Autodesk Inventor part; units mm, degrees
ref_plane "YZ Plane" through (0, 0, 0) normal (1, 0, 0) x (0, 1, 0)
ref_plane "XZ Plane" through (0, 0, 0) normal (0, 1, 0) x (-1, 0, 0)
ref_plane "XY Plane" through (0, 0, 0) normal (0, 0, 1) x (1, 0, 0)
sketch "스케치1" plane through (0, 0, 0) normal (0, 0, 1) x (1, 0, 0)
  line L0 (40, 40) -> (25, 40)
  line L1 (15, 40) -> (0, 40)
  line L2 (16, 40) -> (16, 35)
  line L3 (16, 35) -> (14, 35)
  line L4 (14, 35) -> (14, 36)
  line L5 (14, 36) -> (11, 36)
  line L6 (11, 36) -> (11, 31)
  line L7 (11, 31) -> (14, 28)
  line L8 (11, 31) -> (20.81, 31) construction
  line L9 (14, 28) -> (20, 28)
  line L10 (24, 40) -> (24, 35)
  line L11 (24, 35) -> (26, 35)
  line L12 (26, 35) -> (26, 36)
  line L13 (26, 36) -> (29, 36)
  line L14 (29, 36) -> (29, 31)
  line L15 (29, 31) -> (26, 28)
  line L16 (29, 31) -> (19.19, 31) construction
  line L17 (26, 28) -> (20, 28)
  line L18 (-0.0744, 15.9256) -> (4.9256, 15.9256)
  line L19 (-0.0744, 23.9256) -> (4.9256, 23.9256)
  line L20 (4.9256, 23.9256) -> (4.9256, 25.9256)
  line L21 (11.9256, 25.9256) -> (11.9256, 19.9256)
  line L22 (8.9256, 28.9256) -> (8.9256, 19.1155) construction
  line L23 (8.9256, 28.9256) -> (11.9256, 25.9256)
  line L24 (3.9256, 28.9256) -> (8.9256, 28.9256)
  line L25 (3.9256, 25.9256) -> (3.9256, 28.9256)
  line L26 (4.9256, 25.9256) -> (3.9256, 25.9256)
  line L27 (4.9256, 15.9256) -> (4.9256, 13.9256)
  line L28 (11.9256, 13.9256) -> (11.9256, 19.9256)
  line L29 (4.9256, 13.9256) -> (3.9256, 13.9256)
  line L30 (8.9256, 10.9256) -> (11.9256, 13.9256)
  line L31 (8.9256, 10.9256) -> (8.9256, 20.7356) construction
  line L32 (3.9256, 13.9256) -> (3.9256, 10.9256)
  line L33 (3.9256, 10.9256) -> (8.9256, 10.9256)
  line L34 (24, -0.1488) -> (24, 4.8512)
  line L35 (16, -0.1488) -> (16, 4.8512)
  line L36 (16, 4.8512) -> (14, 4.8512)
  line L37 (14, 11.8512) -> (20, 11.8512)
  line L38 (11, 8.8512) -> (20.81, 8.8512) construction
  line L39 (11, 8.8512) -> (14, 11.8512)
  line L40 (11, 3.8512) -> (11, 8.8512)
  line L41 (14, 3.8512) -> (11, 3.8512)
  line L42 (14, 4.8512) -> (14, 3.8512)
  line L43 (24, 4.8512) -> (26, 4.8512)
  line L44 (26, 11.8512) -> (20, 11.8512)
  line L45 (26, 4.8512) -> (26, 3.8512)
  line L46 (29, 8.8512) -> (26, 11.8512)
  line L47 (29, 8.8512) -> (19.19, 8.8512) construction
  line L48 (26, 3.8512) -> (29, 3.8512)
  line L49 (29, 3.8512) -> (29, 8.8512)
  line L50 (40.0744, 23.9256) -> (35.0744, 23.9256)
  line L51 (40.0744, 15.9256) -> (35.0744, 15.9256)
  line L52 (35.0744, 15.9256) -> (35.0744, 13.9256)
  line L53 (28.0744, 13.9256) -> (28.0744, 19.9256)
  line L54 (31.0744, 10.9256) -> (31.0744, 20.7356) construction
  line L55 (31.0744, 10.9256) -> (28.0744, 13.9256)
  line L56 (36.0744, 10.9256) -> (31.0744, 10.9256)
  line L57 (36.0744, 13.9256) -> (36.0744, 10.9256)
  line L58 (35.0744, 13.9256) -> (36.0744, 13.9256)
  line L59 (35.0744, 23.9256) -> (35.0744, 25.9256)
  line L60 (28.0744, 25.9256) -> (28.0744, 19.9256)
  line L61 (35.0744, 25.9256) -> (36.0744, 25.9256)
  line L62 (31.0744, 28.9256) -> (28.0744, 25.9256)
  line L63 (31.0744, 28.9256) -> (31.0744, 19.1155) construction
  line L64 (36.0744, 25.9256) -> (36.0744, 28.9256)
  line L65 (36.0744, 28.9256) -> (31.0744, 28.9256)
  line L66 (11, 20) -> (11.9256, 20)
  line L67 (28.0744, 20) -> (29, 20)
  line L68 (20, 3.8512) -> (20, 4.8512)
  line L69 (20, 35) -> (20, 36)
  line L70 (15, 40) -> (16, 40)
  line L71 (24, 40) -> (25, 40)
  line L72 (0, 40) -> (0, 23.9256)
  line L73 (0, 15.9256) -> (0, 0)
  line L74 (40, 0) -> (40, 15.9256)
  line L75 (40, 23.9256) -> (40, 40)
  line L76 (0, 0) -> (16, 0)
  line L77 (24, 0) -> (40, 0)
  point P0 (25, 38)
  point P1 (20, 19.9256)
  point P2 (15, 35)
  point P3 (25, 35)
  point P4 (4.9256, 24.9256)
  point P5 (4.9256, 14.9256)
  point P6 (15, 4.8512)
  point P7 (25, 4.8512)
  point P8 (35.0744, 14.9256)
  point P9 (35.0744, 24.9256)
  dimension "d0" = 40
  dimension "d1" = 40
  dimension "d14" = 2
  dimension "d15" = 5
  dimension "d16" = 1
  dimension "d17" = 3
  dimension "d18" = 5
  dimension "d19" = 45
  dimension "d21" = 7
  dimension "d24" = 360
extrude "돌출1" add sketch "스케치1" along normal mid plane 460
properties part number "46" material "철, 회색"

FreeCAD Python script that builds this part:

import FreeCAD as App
import Part
import Sketcher
from FreeCAD import Vector


def add_polygon(sketch, points):
    """Adds a closed chain of lines whose ends are joined by coincident constraints."""
    first, n = sketch.GeometryCount, len(points)
    for a, b in zip(points, points[1:] + points[:1]):
        sketch.addGeometry(Part.LineSegment(App.Vector(*a, 0), App.Vector(*b, 0)), False)
    for i in range(n):
        sketch.addConstraint(Sketcher.Constraint("Coincident", first + i, 2, first + (i + 1) % n, 1))

doc = App.newDocument("Part")
params = doc.addObject("Spreadsheet::Sheet", "Params")
for row, (alias, value) in enumerate([
    ("sketch1_width", "2 mm"),
    ("sketch1_width2", "3 mm"),
    ("sketch1_width3", "1 mm"),
    ("sketch1_width4", "5 mm"),
    ("sketch1_width5", "16 mm"),
    ("pad1_length", "460 mm"),
], start=1):
    params.set(f"A{row}", alias)
    params.set(f"B{row}", "=" + value)
    params.setAlias(f"B{row}", alias)

body = doc.addObject("PartDesign::Body", "Body")

# Sketch on XY plane
sketch1 = doc.addObject("Sketcher::SketchObject", "Sketch")
body.addObject(sketch1)
sketch1.AttachmentSupport = (doc.XY_Plane, [""])
sketch1.MapMode = "FlatFace"
add_polygon(sketch1, [(40, 23.9), (40, 40), (24, 40), (24, 35), (26, 35), (26, 36), (29, 36), (29, 31), (26, 28), (14, 28), (11, 31), (11, 36), (14, 36), (14, 35), (16, 35), (16, 40), (0, 40), (0, 23.9), (4.9, 23.9), (4.9, 25.9), (3.9, 25.9), (3.9, 28.9), (8.9, 28.9), (11.9, 25.9), (11.9, 13.9), (8.9, 10.9), (3.9, 10.9), (3.9, 13.9), (4.9, 13.9), (4.9, 15.9), (0, 15.9), (0, 0), (16, 0), (16, 4.9), (14, 4.9), (14, 3.9), (11, 3.9), (11, 8.9), (14, 11.9), (26, 11.9), (29, 8.9), (29, 3.9), (26, 3.9), (26, 4.9), (24, 4.9), (24, 0), (40, 0), (40, 15.9), (35.1, 15.9), (35.1, 13.9), (36.1, 13.9), (36.1, 10.9), (31.1, 10.9), (28.1, 13.9), (28.1, 25.9), (31.1, 28.9), (36.1, 28.9), (36.1, 25.9), (35.1, 25.9), (35.1, 23.9)])  # lines 0-59
sketch1.addConstraint([
    Sketcher.Constraint("Vertical", 0),
    Sketcher.Constraint("Horizontal", 1),
    Sketcher.Constraint("Vertical", 2),
    Sketcher.Constraint("Horizontal", 3),
    Sketcher.Constraint("Vertical", 4),
    Sketcher.Constraint("Horizontal", 5),
    Sketcher.Constraint("Vertical", 6),
    Sketcher.Constraint("Horizontal", 8),
    Sketcher.Constraint("Vertical", 10),
    Sketcher.Constraint("Horizontal", 11),
    Sketcher.Constraint("Vertical", 12),
    Sketcher.Constraint("Horizontal", 13),
    Sketcher.Constraint("Vertical", 14),
    Sketcher.Constraint("Horizontal", 15),
    Sketcher.Constraint("Vertical", 16),
    Sketcher.Constraint("Horizontal", 17),
    Sketcher.Constraint("Vertical", 18),
    Sketcher.Constraint("Horizontal", 19),
    Sketcher.Constraint("Vertical", 20),
    Sketcher.Constraint("Horizontal", 21),
    Sketcher.Constraint("Vertical", 23),
    Sketcher.Constraint("Horizontal", 25),
    Sketcher.Constraint("Vertical", 26),
    Sketcher.Constraint("Horizontal", 27),
    Sketcher.Constraint("Vertical", 28),
    Sketcher.Constraint("Horizontal", 29),
    Sketcher.Constraint("Vertical", 30),
    Sketcher.Constraint("Horizontal", 31),
    Sketcher.Constraint("Vertical", 32),
    Sketcher.Constraint("Horizontal", 33),
    Sketcher.Constraint("Vertical", 34),
    Sketcher.Constraint("Horizontal", 35),
    Sketcher.Constraint("Vertical", 36),
    Sketcher.Constraint("Horizontal", 38),
    Sketcher.Constraint("Vertical", 40),
    Sketcher.Constraint("Horizontal", 41),
    Sketcher.Constraint("Vertical", 42),
    Sketcher.Constraint("Horizontal", 43),
    Sketcher.Constraint("Vertical", 44),
    Sketcher.Constraint("Horizontal", 45),
    Sketcher.Constraint("Vertical", 46),
    Sketcher.Constraint("Horizontal", 47),
    Sketcher.Constraint("Vertical", 48),
    Sketcher.Constraint("Horizontal", 49),
    Sketcher.Constraint("Vertical", 50),
    Sketcher.Constraint("Horizontal", 51),
    Sketcher.Constraint("Vertical", 53),
    Sketcher.Constraint("Horizontal", 55),
    Sketcher.Constraint("Vertical", 56),
    Sketcher.Constraint("Horizontal", 57),
    Sketcher.Constraint("Vertical", 58),
    Sketcher.Constraint("Horizontal", 59),
    Sketcher.Constraint("Coincident", 30, 2, -1, 1),
    Sketcher.Constraint("PointOnObject", 15, 2, -2),
    Sketcher.Constraint("PointOnObject", 44, 2, -1),
    Sketcher.Constraint("Perpendicular", 7, 9),
    Sketcher.Constraint("Parallel", 9, 22),
    Sketcher.Constraint("Perpendicular", 22, 24),
    Sketcher.Constraint("Parallel", 24, 37),
    Sketcher.Constraint("Perpendicular", 37, 39),
    Sketcher.Constraint("Parallel", 39, 52),
    Sketcher.Constraint("Perpendicular", 52, 54),
    Sketcher.Constraint("Horizontal", 6, 2, 9, 2),
    Sketcher.Constraint("Horizontal", 5, 2, 10, 2),
    Sketcher.Constraint("Horizontal", 3, 2, 12, 2),
    Sketcher.Constraint("Horizontal", 1, 2, 14, 2),
    Sketcher.Constraint("Horizontal", 19, 2, 22, 2),
    Sketcher.Constraint("Horizontal", 23, 2, 26, 2),
    Sketcher.Constraint("Horizontal", 36, 2, 39, 2),
    Sketcher.Constraint("Horizontal", 35, 2, 40, 2),
    Sketcher.Constraint("Horizontal", 33, 2, 42, 2),
    Sketcher.Constraint("Horizontal", 29, 2, 46, 2),
    Sketcher.Constraint("Horizontal", 27, 2, 48, 2),
    Sketcher.Constraint("Horizontal", 25, 2, 50, 2),
    Sketcher.Constraint("Horizontal", 49, 2, 52, 2),
    Sketcher.Constraint("Horizontal", 22, 2, 53, 2),
    Sketcher.Constraint("Horizontal", 21, 2, 54, 2),
    Sketcher.Constraint("Horizontal", 53, 2, 56, 2),
    Sketcher.Constraint("Horizontal", 17, 2, 58, 2),
    Sketcher.Constraint("Vertical", 4, 2, 7, 2),
    Sketcher.Constraint("Vertical", 8, 2, 11, 2),
    Sketcher.Constraint("Vertical", 21, 2, 24, 2),
    Sketcher.Constraint("Vertical", 20, 2, 25, 2),
    Sketcher.Constraint("Vertical", 18, 2, 27, 2),
    Sketcher.Constraint("Vertical", 14, 2, 31, 2),
    Sketcher.Constraint("Vertical", 12, 2, 33, 2),
    Sketcher.Constraint("Vertical", 10, 2, 35, 2),
    Sketcher.Constraint("Vertical", 34, 2, 37, 2),
    Sketcher.Constraint("Vertical", 7, 2, 38, 2),
    Sketcher.Constraint("Vertical", 6, 2, 39, 2),
    Sketcher.Constraint("Vertical", 38, 2, 41, 2),
    Sketcher.Constraint("Vertical", 2, 2, 43, 2),
    Sketcher.Constraint("Vertical", 0, 2, 45, 2),
    Sketcher.Constraint("Vertical", 50, 2, 55, 2),
    Sketcher.Constraint("Vertical", 48, 2, 57, 2),
    Sketcher.Constraint("Equal", 3, 13),
    Sketcher.Constraint("Equal", 1, 15),
    Sketcher.Constraint("Equal", 29, 47),
    Sketcher.Constraint("Equal", 27, 49),
    Sketcher.Constraint("Equal", 25, 51),
    Sketcher.Constraint("Equal", 55, 2),
    Sketcher.Constraint("Equal", 57, 4),
    Sketcher.Constraint("Equal", 2, 6),
    Sketcher.Constraint("Equal", 43, 18),
    Sketcher.Constraint("Equal", 41, 20),
    Sketcher.Constraint("Equal", 38, 23),
    Sketcher.Constraint("Equal", 18, 28),
    Sketcher.Constraint("Equal", 12, 34),
    Sketcher.Constraint("Equal", 14, 36),
    Sketcher.Constraint("DistanceX", 3, 1, 3, 2, 2.0),
    Sketcher.Constraint("DistanceX", 5, 1, 5, 2, 3.0),
    Sketcher.Constraint("DistanceX", 19, 2, 19, 1, 1.0),
    Sketcher.Constraint("DistanceX", 21, 1, 21, 2, 5.0),
    Sketcher.Constraint("DistanceX", -1, 1, 0, 2, 40.0),
    Sketcher.Constraint("DistanceY", -1, 1, 0, 2, 40.0),
    Sketcher.Constraint("DistanceX", 1, 2, 1, 1, 16.0),
    Sketcher.Constraint("DistanceX", 17, 1, 17, 2, 4.9256),
    Sketcher.Constraint("DistanceY", 0, 1, 0, 2, 16.0744),
    Sketcher.Constraint("DistanceY", 32, 1, 32, 2, 4.8512),
])
sketch1.setExpression("Constraints[169]", "Params.sketch1_width")
sketch1.setExpression("Constraints[170]", "Params.sketch1_width2")
sketch1.setExpression("Constraints[171]", "Params.sketch1_width3")
sketch1.setExpression("Constraints[172]", "Params.sketch1_width4")
sketch1.setExpression("Constraints[175]", "Params.sketch1_width5")
pad1 = doc.addObject("PartDesign::Pad", "Pad")
body.addObject(pad1)
pad1.Profile = sketch1
pad1.setExpression("Length", "Params.pad1_length")
pad1.Midplane = True

doc.recompute()
